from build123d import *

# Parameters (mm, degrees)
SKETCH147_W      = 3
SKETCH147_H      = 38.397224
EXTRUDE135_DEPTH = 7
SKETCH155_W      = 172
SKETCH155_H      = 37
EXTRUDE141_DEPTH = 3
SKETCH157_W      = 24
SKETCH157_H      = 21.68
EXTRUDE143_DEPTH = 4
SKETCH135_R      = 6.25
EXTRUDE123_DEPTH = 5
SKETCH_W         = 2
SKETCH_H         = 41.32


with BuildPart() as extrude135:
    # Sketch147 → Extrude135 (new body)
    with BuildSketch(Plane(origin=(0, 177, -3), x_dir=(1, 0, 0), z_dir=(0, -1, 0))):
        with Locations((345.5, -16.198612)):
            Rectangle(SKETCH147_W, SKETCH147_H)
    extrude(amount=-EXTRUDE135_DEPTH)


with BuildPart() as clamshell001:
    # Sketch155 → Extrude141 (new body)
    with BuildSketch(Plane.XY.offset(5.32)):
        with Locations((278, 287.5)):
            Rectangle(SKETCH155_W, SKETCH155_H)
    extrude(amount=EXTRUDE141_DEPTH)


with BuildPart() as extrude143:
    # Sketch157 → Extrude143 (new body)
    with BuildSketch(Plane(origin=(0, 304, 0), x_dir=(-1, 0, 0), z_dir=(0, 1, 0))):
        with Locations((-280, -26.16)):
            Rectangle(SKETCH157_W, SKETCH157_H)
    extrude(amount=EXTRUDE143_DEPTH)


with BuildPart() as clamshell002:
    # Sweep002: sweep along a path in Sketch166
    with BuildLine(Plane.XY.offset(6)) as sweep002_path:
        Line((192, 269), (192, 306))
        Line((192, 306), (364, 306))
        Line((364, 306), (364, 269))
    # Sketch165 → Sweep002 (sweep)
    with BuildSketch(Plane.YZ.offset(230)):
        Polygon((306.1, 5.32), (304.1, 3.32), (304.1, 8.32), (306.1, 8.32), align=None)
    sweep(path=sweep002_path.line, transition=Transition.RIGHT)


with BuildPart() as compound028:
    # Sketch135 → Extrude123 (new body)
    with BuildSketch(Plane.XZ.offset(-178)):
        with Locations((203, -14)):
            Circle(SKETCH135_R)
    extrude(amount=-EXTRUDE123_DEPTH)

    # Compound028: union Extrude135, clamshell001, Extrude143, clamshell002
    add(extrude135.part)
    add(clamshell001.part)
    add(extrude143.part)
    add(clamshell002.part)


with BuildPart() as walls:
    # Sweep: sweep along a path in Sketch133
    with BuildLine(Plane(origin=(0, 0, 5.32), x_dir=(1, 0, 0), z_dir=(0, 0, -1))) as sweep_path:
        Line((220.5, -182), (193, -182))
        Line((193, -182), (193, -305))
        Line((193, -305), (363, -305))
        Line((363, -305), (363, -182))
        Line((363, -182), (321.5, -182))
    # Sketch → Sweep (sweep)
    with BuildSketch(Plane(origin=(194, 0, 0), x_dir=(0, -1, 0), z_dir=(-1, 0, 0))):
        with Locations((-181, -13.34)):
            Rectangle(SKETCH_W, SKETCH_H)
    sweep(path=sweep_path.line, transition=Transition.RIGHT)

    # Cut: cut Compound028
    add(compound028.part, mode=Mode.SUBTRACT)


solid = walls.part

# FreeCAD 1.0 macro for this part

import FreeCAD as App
import Part
import Sketcher

V = App.Vector
Q = App.Units.Quantity


def add_polygon(sketch, points):
    """Adds a closed chain of lines whose ends are joined by coincident constraints."""
    first, n = sketch.GeometryCount, len(points)
    for a, b in zip(points, points[1:] + points[:1]):
        sketch.addGeometry(Part.LineSegment(App.Vector(*a, 0), App.Vector(*b, 0)), False)
    for i in range(n):
        sketch.addConstraint(Sketcher.Constraint("Coincident", first + i, 2, first + (i + 1) % n, 1))

doc = App.newDocument("Part")
body = doc.addObject("PartDesign::Body", "Body")

sketch1 = body.newObject("Sketcher::SketchObject", "Sketch")
sketch1.AttachmentSupport = (doc.getObject("XZ_Plane"), [""])
sketch1.MapMode = "FlatFace"
sketch1.AttachmentOffset = App.Placement(V(0, 0, -177), App.Rotation())
add_polygon(sketch1, [(344, 0), (344, -38.4), (347, -38.4), (347, 0)])
sketch1.addConstraint([
    Sketcher.Constraint("Vertical", 0),
    Sketcher.Constraint("Horizontal", 1),
    Sketcher.Constraint("Vertical", 2),
    Sketcher.Constraint("Horizontal", 3),
    Sketcher.Constraint("PointOnObject", 2, 2, -1),
    Sketcher.Constraint("DistanceX", 1, 1, 1, 2, Q("3 mm")),
    Sketcher.Constraint("DistanceX", -1, 1, 0, 2, Q("344 mm")),
    Sketcher.Constraint("DistanceY", 0, 2, 0, 1, Q("38.397224 mm")),
])
pad1 = body.newObject("PartDesign::Pad", "Pad")
pad1.Profile = sketch1
pad1.Length = 7
pad1.Reversed = True
body2 = doc.addObject("PartDesign::Body", "Body001")

sketch2 = body2.newObject("Sketcher::SketchObject", "Sketch001")
sketch2.AttachmentSupport = (doc.getObject("XY_Plane001"), [""])
sketch2.MapMode = "FlatFace"
sketch2.AttachmentOffset = App.Placement(V(0, 0, 5.32), App.Rotation())
add_polygon(sketch2, [(192, 306), (192, 269), (364, 269), (364, 306)])
sketch2.addConstraint([
    Sketcher.Constraint("Vertical", 0),
    Sketcher.Constraint("Horizontal", 1),
    Sketcher.Constraint("Vertical", 2),
    Sketcher.Constraint("Horizontal", 3),
    Sketcher.Constraint("DistanceX", 1, 1, 1, 2, Q("172 mm")),
    Sketcher.Constraint("DistanceY", 0, 2, 0, 1, Q("37 mm")),
    Sketcher.Constraint("DistanceX", -1, 1, 0, 2, Q("192 mm")),
    Sketcher.Constraint("DistanceY", -1, 1, 0, 2, Q("269 mm")),
])
pad2 = body2.newObject("PartDesign::Pad", "Pad001")
pad2.Profile = sketch2
pad2.Length = 3
body3 = doc.addObject("PartDesign::Body", "Body002")

sketch3 = body3.newObject("Sketcher::SketchObject", "Sketch002")
sketch3.AttachmentSupport = (doc.getObject("XZ_Plane002"), [""])
sketch3.MapMode = "FlatFace"
sketch3.AttachmentOffset = App.Placement(V(0, 0, -304), App.Rotation())
add_polygon(sketch3, [(292, -15), (292, -37), (268, -37), (268, -15)])
sketch3.addConstraint([
    Sketcher.Constraint("Vertical", 0),
    Sketcher.Constraint("Horizontal", 1),
    Sketcher.Constraint("Vertical", 2),
    Sketcher.Constraint("Horizontal", 3),
    Sketcher.Constraint("DistanceX", 1, 2, 1, 1, Q("24 mm")),
    Sketcher.Constraint("DistanceX", -1, 1, 0, 2, Q("292 mm")),
    Sketcher.Constraint("DistanceY", 0, 2, -1, 1, Q("37 mm")),
    Sketcher.Constraint("DistanceY", 0, 2, 0, 1, Q("21.68 mm")),
])
pad3 = body3.newObject("PartDesign::Pad", "Pad002")
pad3.Profile = sketch3
pad3.Length = 4
pad3.Reversed = True
body4 = doc.addObject("PartDesign::Body", "Body003")

sketch4 = body4.newObject("Sketcher::SketchObject", "Sketch003")
sketch4.AttachmentSupport = (doc.getObject("YZ_Plane003"), [""])
sketch4.MapMode = "FlatFace"
sketch4.AttachmentOffset = App.Placement(V(0, 0, 230), App.Rotation())
add_polygon(sketch4, [(304.1, 3.3), (306.1, 5.3), (306.1, 8.3), (304.1, 8.3)])
sketch4.addConstraint([
    Sketcher.Constraint("Vertical", 1),
    Sketcher.Constraint("Horizontal", 2),
    Sketcher.Constraint("Vertical", 3),
    Sketcher.Constraint("DistanceX", 2, 2, 2, 1, Q("2 mm")),
    Sketcher.Constraint("DistanceY", 1, 1, 1, 2, Q("3 mm")),
    Sketcher.Constraint("DistanceY", 3, 2, 3, 1, Q("5 mm")),
    Sketcher.Constraint("DistanceX", -1, 1, 0, 2, Q("306.1 mm")),
    Sketcher.Constraint("DistanceY", -1, 1, 0, 2, Q("5.32 mm")),
])

sketch5 = body4.newObject("Sketcher::SketchObject", "Sketch004")
sketch5.AttachmentSupport = (doc.getObject("XY_Plane003"), [""])
sketch5.MapMode = "FlatFace"
sketch5.AttachmentOffset = App.Placement(V(0, 0, 6), App.Rotation())
sketch5.addGeometry([
    Part.LineSegment(V(192, 269, 0), V(192, 306, 0)),
    Part.LineSegment(V(192, 306, 0), V(364, 306, 0)),
    Part.LineSegment(V(364, 306, 0), V(364, 269, 0)),
], False)
sketch5.addConstraint([
    Sketcher.Constraint("Coincident", 0, 2, 1, 1),
    Sketcher.Constraint("Coincident", 1, 2, 2, 1),
    Sketcher.Constraint("Vertical", 0),
    Sketcher.Constraint("Horizontal", 1),
    Sketcher.Constraint("Vertical", 2),
    Sketcher.Constraint("Horizontal", 0, 1, 2, 2),
    Sketcher.Constraint("DistanceX", 1, 1, 1, 2, Q("172 mm")),
    Sketcher.Constraint("DistanceY", 0, 1, 0, 2, Q("37 mm")),
    Sketcher.Constraint("DistanceX", -1, 1, 0, 1, Q("192 mm")),
    Sketcher.Constraint("DistanceY", -1, 1, 0, 1, Q("269 mm")),
])
doc.recompute()

additivepipe = body4.newObject("PartDesign::AdditivePipe", "AdditivePipe")
additivepipe.Profile = sketch4
additivepipe.Spine = (sketch5, ["Edge1", "Edge2", "Edge3"])
additivepipe.Transition = "Right corner"
body5 = doc.addObject("PartDesign::Body", "Body004")
body5.AllowCompound = True

sketch6 = body5.newObject("Sketcher::SketchObject", "Sketch005")
sketch6.AttachmentSupport = (doc.getObject("XZ_Plane004"), [""])
sketch6.MapMode = "FlatFace"
sketch6.AttachmentOffset = App.Placement(V(0, 0, -178), App.Rotation())
sketch6.addGeometry(Part.Circle(V(203, -14, 0), V(0, 0, 1), 6), False)
sketch6.addConstraint([
    Sketcher.Constraint("Diameter", 0, Q("12.5 mm")),
    Sketcher.Constraint("DistanceX", -1, 1, 0, 3, Q("203 mm")),
    Sketcher.Constraint("DistanceY", 0, 3, -1, 1, Q("14 mm")),
])
pad4 = body5.newObject("PartDesign::Pad", "Pad003")
pad4.Profile = sketch6
pad4.Length = 5
pad4.Reversed = True
doc.recompute()

boolean = body5.newObject("PartDesign::Boolean", "Boolean")
boolean.Type = "Fuse"
boolean.addObjects([body])
doc.recompute()

boolean2 = body5.newObject("PartDesign::Boolean", "Boolean001")
boolean2.Type = "Fuse"
boolean2.addObjects([body2])
doc.recompute()

boolean3 = body5.newObject("PartDesign::Boolean", "Boolean002")
boolean3.Type = "Fuse"
boolean3.addObjects([body3])
doc.recompute()

boolean4 = body5.newObject("PartDesign::Boolean", "Boolean003")
boolean4.Type = "Fuse"
boolean4.addObjects([body4])
body6 = doc.addObject("PartDesign::Body", "Body005")

sketch7 = body6.newObject("Sketcher::SketchObject", "Sketch006")
sketch7.AttachmentSupport = (doc.getObject("YZ_Plane005"), [""])
sketch7.MapMode = "FlatFace"
sketch7.AttachmentOffset = App.Placement(V(0, 0, 194), App.Rotation())
add_polygon(sketch7, [(182, 7.3), (182, -34), (180, -34), (180, 7.3)])
sketch7.addConstraint([
    Sketcher.Constraint("Vertical", 0),
    Sketcher.Constraint("Horizontal", 1),
    Sketcher.Constraint("Vertical", 2),
    Sketcher.Constraint("Horizontal", 3),
    Sketcher.Constraint("DistanceX", 1, 2, 1, 1, Q("2 mm")),
    Sketcher.Constraint("DistanceX", -1, 1, 0, 2, Q("182 mm")),
    Sketcher.Constraint("DistanceY", 0, 2, -1, 1, Q("34 mm")),
    Sketcher.Constraint("DistanceY", 0, 2, 0, 1, Q("41.32 mm")),
])

sketch8 = body6.newObject("Sketcher::SketchObject", "Sketch007")
sketch8.AttachmentSupport = (doc.getObject("XY_Plane005"), [""])
sketch8.MapMode = "FlatFace"
sketch8.AttachmentOffset = App.Placement(V(0, 0, 5.32), App.Rotation())
sketch8.addGeometry([
    Part.LineSegment(V(220, 182, 0), V(193, 182, 0)),
    Part.LineSegment(V(193, 182, 0), V(193, 305, 0)),
    Part.LineSegment(V(193, 305, 0), V(363, 305, 0)),
    Part.LineSegment(V(363, 305, 0), V(363, 182, 0)),
    Part.LineSegment(V(363, 182, 0), V(322, 182, 0)),
], False)
sketch8.addConstraint([
    Sketcher.Constraint("Coincident", 0, 2, 1, 1),
    Sketcher.Constraint("Coincident", 1, 2, 2, 1),
    Sketcher.Constraint("Coincident", 2, 2, 3, 1),
    Sketcher.Constraint("Coincident", 3, 2, 4, 1),
    Sketcher.Constraint("Horizontal", 0),
    Sketcher.Constraint("Vertical", 1),
    Sketcher.Constraint("Horizontal", 2),
    Sketcher.Constraint("Vertical", 3),
    Sketcher.Constraint("Horizontal", 4),
    Sketcher.Constraint("Horizontal", 0, 2, 3, 2),
    Sketcher.Constraint("DistanceX", 2, 1, 2, 2, Q("170 mm")),
    Sketcher.Constraint("DistanceY", 1, 1, 1, 2, Q("123 mm")),
    Sketcher.Constraint("DistanceX", 0, 2, 0, 1, Q("27.5 mm")),
    Sketcher.Constraint("DistanceX", 4, 2, 4, 1, Q("41.5 mm")),
    Sketcher.Constraint("DistanceY", -1, 1, 0, 1, Q("182 mm")),
    Sketcher.Constraint("DistanceX", -1, 1, 0, 2, Q("193 mm")),
])
doc.recompute()

additivepipe2 = body6.newObject("PartDesign::AdditivePipe", "AdditivePipe001")
additivepipe2.Profile = sketch7
additivepipe2.Spine = (sketch8, ["Edge1", "Edge2", "Edge3", "Edge4", "Edge5"])
additivepipe2.Transition = "Right corner"
doc.recompute()

boolean5 = body6.newObject("PartDesign::Boolean", "Boolean004")
boolean5.Type = "Cut"
boolean5.addObjects([body5])

doc.recompute()
